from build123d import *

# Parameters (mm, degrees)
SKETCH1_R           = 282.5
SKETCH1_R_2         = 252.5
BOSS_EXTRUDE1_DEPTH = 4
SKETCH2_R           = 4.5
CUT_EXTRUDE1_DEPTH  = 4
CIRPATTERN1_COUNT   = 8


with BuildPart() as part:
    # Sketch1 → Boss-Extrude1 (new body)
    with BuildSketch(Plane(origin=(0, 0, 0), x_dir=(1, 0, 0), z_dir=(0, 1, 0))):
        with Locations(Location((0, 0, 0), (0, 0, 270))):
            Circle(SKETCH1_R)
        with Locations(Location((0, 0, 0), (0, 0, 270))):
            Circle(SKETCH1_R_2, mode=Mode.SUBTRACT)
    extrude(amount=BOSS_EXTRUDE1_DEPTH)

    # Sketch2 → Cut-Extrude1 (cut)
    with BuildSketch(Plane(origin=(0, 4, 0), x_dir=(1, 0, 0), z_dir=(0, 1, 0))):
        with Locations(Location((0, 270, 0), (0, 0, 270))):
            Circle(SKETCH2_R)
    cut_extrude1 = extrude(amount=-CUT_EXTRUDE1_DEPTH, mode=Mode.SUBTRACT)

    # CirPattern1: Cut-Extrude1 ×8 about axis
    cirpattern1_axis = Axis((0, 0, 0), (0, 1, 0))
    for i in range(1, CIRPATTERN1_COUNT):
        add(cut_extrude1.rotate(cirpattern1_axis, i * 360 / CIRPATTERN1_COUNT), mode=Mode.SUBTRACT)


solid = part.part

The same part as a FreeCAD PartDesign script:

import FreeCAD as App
import Part
import Sketcher
Q = App.Units.Quantity

doc = App.newDocument("Part")
params = doc.addObject("Spreadsheet::Sheet", "Params")
for row, (alias, value) in enumerate([
    ("sketch1_diameter", "565 mm"),
    ("sketch1_diameter2", "505 mm"),
    ("pad1_length", "4 mm"),
    ("sketch2_diameter", "9 mm"),
    ("pocket1_length", "4 mm"),
], start=1):
    params.set(f"A{row}", alias)
    params.set(f"B{row}", "=" + value)
    params.setAlias(f"B{row}", alias)

body = doc.addObject("PartDesign::Body", "Body")

# Sketch on XZ plane
sketch1 = body.newObject("Sketcher::SketchObject", "Sketch")
sketch1.AttachmentSupport = (doc.getObject("XZ_Plane"), [""])
sketch1.MapMode = "FlatFace"
sketch1.addGeometry(Part.Circle(App.Vector(0, 0, 0), App.Vector(0, 0, 1), 282.5), False)
sketch1.addGeometry(Part.Circle(App.Vector(0, 0, 0), App.Vector(0, 0, 1), 252.5), False)
sketch1.addConstraint(Sketcher.Constraint("Coincident", 0, 3, -1, 1))
sketch1.addConstraint(Sketcher.Constraint("Coincident", 1, 3, -1, 1))
sketch1.addConstraint(Sketcher.Constraint("Diameter", 0, Q("565 mm")))
sketch1.addConstraint(Sketcher.Constraint("Diameter", 1, Q("505 mm")))
sketch1.setExpression("Constraints[2]", "Params.sketch1_diameter")
sketch1.setExpression("Constraints[3]", "Params.sketch1_diameter2")
pad1 = body.newObject("PartDesign::Pad", "Pad")
pad1.Profile = sketch1
pad1.setExpression("Length", "Params.pad1_length")
pad1.Reversed = True

# Sketch on XZ plane
sketch2 = body.newObject("Sketcher::SketchObject", "Sketch001")
sketch2.AttachmentSupport = (doc.getObject("XZ_Plane"), [""])
sketch2.MapMode = "FlatFace"
sketch2.AttachmentOffset = App.Placement(App.Vector(0, 0, -4), App.Rotation())
sketch2.addGeometry(Part.Circle(App.Vector(0, -270, 0), App.Vector(0, 0, 1), 4.5), False)
sketch2.addConstraint(Sketcher.Constraint("PointOnObject", 0, 3, -2))
sketch2.addConstraint(Sketcher.Constraint("Diameter", 0, Q("9 mm")))
sketch2.addConstraint(Sketcher.Constraint("DistanceY", 0, 3, -1, 1, Q("270 mm")))
sketch2.setExpression("Constraints[1]", "Params.sketch2_diameter")
pocket1 = body.newObject("PartDesign::Pocket", "Pocket")
pocket1.Profile = sketch2
pocket1.setExpression("Length", "Params.pocket1_length")
pocket1.Reversed = True
doc.recompute()

polarpattern = body.newObject("PartDesign::PolarPattern", "PolarPattern")
polarpattern.Originals = [pocket1]
polarpattern.Axis = (doc.getObject("Y_Axis"), [""])
polarpattern.Angle = 360
polarpattern.Occurrences = 8
body.Tip = polarpattern

doc.recompute()
